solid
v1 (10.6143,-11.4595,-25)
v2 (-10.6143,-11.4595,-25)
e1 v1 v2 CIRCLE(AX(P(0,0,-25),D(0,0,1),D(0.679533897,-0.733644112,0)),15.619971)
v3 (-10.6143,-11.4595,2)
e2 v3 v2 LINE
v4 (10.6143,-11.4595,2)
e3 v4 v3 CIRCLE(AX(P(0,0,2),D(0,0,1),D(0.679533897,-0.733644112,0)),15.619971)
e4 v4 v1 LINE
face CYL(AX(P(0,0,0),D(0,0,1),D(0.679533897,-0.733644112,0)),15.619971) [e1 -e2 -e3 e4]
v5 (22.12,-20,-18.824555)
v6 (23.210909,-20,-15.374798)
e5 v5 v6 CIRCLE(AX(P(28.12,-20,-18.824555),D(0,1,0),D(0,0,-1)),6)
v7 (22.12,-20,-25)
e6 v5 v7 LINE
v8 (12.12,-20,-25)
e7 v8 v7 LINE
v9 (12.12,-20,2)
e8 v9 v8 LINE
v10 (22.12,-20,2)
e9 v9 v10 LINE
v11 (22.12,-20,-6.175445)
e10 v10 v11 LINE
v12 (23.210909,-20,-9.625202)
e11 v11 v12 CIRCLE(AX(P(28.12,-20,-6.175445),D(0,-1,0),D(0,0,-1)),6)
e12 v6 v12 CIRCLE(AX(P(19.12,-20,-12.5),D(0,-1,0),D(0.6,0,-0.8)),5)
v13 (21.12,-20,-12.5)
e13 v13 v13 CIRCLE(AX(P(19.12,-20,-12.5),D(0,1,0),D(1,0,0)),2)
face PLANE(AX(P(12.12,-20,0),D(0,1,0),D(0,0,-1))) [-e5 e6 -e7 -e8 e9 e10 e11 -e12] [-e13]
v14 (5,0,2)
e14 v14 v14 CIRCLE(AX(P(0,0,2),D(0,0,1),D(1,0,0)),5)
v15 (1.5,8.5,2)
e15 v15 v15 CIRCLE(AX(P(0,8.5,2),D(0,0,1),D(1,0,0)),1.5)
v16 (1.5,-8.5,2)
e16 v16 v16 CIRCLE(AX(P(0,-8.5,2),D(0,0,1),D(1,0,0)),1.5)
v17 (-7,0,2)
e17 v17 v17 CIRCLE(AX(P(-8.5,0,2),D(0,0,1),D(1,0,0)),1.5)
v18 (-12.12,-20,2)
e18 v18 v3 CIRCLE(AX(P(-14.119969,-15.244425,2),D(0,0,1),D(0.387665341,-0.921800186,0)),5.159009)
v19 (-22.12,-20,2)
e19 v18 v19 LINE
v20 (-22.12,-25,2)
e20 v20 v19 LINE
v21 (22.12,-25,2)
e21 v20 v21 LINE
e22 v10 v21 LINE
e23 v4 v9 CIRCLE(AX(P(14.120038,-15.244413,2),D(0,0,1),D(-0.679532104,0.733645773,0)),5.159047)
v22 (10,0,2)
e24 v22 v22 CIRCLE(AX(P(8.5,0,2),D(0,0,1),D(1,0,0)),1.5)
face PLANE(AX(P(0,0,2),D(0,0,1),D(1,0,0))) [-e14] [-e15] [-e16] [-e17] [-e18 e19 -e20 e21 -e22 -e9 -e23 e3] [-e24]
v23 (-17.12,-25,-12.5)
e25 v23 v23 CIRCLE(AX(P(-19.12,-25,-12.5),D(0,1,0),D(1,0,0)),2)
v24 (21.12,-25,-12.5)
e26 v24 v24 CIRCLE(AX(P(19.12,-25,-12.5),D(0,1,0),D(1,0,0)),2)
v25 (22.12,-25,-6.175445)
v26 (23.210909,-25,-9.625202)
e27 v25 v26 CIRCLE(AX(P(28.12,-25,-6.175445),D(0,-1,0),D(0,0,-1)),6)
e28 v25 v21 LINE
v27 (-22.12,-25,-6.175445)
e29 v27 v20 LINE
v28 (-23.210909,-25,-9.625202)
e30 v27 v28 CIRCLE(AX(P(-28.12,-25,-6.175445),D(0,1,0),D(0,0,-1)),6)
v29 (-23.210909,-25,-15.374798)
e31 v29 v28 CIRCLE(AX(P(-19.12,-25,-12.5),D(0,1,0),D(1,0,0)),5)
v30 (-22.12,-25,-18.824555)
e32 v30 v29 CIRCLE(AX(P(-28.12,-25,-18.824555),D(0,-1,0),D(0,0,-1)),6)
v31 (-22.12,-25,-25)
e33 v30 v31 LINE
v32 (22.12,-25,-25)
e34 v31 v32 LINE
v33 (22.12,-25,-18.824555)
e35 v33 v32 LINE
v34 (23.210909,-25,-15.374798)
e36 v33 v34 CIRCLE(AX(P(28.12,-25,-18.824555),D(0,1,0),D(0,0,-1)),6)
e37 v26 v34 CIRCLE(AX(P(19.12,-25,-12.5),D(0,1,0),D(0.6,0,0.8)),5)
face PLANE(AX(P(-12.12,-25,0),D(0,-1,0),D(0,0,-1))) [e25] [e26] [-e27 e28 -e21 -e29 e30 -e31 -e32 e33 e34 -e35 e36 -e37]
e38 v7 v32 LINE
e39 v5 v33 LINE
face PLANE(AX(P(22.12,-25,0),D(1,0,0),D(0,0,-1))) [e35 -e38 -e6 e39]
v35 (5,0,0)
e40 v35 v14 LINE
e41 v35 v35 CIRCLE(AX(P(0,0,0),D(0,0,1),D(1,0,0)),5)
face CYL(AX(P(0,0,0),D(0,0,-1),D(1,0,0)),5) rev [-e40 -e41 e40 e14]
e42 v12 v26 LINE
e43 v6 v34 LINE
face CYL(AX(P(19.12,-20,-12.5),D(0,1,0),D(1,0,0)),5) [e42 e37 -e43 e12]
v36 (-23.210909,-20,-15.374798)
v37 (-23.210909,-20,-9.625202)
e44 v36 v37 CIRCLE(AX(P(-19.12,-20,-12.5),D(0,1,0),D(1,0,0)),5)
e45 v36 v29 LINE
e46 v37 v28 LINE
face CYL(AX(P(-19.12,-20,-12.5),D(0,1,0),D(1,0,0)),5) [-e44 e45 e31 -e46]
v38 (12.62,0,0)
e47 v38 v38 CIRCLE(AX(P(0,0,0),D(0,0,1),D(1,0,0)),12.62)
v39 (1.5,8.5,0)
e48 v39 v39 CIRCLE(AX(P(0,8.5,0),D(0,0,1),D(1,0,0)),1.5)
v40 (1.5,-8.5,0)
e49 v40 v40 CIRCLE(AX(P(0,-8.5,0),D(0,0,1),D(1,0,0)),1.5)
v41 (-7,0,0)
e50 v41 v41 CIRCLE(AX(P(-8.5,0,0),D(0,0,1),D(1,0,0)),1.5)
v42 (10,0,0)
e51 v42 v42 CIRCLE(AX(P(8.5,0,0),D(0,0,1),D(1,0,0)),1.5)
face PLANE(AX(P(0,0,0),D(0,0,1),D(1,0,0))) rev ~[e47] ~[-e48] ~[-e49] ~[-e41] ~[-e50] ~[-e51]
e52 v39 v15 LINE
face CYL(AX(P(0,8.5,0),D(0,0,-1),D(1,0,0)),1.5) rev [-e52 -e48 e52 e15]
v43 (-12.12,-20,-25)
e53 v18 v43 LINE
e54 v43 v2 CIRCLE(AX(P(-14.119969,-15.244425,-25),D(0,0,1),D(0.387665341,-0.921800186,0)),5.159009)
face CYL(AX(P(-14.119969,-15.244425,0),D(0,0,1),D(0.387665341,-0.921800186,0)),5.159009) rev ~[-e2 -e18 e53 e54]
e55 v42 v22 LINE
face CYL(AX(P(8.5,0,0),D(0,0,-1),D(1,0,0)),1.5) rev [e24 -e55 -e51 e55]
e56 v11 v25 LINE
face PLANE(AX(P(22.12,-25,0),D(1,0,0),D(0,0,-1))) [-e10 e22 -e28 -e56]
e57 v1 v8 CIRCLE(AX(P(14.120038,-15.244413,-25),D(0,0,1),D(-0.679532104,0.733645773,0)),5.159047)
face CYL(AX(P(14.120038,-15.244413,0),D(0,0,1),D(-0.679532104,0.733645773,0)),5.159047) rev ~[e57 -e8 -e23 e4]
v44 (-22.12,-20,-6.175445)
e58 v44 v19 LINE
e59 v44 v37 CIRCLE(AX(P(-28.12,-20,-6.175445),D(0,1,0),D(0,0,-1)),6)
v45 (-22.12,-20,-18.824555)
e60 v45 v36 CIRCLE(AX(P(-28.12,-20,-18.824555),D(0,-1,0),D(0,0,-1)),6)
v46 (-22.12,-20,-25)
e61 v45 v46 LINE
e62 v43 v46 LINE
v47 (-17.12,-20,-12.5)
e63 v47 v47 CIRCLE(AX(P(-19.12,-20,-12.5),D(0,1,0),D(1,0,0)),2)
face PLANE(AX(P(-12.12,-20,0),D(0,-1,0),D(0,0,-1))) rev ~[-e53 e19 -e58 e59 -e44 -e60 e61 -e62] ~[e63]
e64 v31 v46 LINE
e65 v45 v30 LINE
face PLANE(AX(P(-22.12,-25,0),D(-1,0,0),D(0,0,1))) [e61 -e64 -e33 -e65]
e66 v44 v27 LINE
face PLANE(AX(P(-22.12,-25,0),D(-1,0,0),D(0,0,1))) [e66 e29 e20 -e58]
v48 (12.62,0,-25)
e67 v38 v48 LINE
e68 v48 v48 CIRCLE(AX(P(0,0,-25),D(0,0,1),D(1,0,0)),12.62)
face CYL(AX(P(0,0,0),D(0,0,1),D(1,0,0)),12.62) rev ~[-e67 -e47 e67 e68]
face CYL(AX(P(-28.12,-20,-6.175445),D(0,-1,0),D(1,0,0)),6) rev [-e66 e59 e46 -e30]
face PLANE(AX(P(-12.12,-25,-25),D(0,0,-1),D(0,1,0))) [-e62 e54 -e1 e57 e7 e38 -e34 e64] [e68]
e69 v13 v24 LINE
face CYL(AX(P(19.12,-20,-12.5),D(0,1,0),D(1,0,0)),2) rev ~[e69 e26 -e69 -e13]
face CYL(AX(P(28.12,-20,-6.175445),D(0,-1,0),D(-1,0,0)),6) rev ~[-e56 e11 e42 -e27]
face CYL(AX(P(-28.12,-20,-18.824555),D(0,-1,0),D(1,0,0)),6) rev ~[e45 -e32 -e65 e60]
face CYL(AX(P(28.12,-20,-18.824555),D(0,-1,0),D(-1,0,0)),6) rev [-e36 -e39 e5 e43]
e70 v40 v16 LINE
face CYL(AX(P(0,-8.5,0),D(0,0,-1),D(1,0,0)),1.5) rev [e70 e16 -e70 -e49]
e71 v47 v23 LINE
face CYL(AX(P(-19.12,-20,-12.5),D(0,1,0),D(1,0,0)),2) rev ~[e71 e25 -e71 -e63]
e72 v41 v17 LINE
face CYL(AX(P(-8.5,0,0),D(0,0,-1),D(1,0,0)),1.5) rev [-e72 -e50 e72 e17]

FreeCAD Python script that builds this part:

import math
import FreeCAD as App
import Part
import Sketcher
from FreeCAD import Vector
Q = App.Units.Quantity


def edges_at(feature, points):
    """Names of the edges that pass closest to the given points."""
    edges = feature.Shape.Edges
    near = lambda p: min(range(len(edges)), key=lambda i: edges[i].distToShape(Part.Vertex(*p))[0])
    return sorted({f"Edge{near(p) + 1}" for p in points})


def add_polygon(sketch, points):
    """Adds a closed chain of lines whose ends are joined by coincident constraints."""
    first, n = sketch.GeometryCount, len(points)
    for a, b in zip(points, points[1:] + points[:1]):
        sketch.addGeometry(Part.LineSegment(App.Vector(*a, 0), App.Vector(*b, 0)), False)
    for i in range(n):
        sketch.addConstraint(Sketcher.Constraint("Coincident", first + i, 2, first + (i + 1) % n, 1))

doc = App.newDocument("Part")
body = doc.addObject("PartDesign::Body", "Body")

sketch1 = doc.addObject("Sketcher::SketchObject", "Sketch")
body.addObject(sketch1)
sketch1.AttachmentSupport = (doc.XY_Plane, [""])
sketch1.MapMode = "FlatFace"
sketch1.addGeometry([
    Part.ArcOfCircle(Part.Circle(Vector(14, -15, 0), Vector(0, 0, 1), 5), math.radians(133), math.radians(247)),
    Part.ArcOfCircle(Part.Circle(Vector(0, 0, 0), Vector(0, 0, 1), 16), math.radians(-47), math.radians(227)),
    Part.ArcOfCircle(Part.Circle(Vector(-14, -15, 0), Vector(0, 0, 1), 5), math.radians(-67), math.radians(47)),
    Part.LineSegment(Vector(-12, -20, 0), Vector(-12, -25, 0)),
    Part.LineSegment(Vector(-12, -25, 0), Vector(12, -25, 0)),
    Part.LineSegment(Vector(12, -25, 0), Vector(12, -20, 0)),
    Part.Circle(Vector(0, 0, 0), Vector(0, 0, 1), 13),
], False)
sketch1.addConstraint([
    Sketcher.Constraint("Tangent", 0, 1, 1, 1),
    Sketcher.Constraint("Tangent", 1, 2, 2, 2),
    Sketcher.Constraint("Coincident", 2, 1, 3, 1),
    Sketcher.Constraint("Coincident", 3, 2, 4, 1),
    Sketcher.Constraint("Coincident", 4, 2, 5, 1),
    Sketcher.Constraint("Coincident", 5, 2, 0, 2),
    Sketcher.Constraint("Vertical", 3),
    Sketcher.Constraint("Horizontal", 4),
    Sketcher.Constraint("Vertical", 5),
    Sketcher.Constraint("Coincident", 1, 3, -1, 1),
    Sketcher.Constraint("Coincident", 6, 3, -1, 1),
    Sketcher.Constraint("Equal", 0, 2),
    Sketcher.Constraint("Symmetric", 2, 1, 5, 2, -2),
    Sketcher.Constraint("DistanceY", 3, 2, 3, 1, Q("5 mm")),
    Sketcher.Constraint("DistanceY", 3, 2, -1, 1, Q("25 mm")),
    Sketcher.Constraint("DistanceX", 2, 3, 2, 1, Q("2 mm")),
    Sketcher.Constraint("Diameter", 6, Q("25.24 mm")),
    Sketcher.Constraint("Radius", 1, Q("15.62 mm")),
    Sketcher.Constraint("Radius", 0, Q("5.159 mm")),
])
pad1 = doc.addObject("PartDesign::Pad", "Pad")
body.addObject(pad1)
pad1.Profile = sketch1
pad1.Length = 25
pad1.Reversed = True

sketch2 = doc.addObject("Sketcher::SketchObject", "Sketch001")
body.addObject(sketch2)
sketch2.AttachmentSupport = (doc.YZ_Plane, [""])
sketch2.MapMode = "FlatFace"
sketch2.AttachmentOffset = App.Placement(Vector(0, 0, 12.12), App.Rotation())
add_polygon(sketch2, [(-20, 0), (-25, 0), (-25, -25), (-20, -25)])
sketch2.addConstraint([
    Sketcher.Constraint("Horizontal", 0),
    Sketcher.Constraint("Vertical", 1),
    Sketcher.Constraint("Horizontal", 2),
    Sketcher.Constraint("Vertical", 3),
    Sketcher.Constraint("PointOnObject", 0, 2, -1),
    Sketcher.Constraint("DistanceX", 0, 2, 0, 1, Q("5 mm")),
    Sketcher.Constraint("DistanceY", 1, 2, 1, 1, Q("25 mm")),
    Sketcher.Constraint("DistanceX", 0, 2, -1, 1, Q("25 mm")),
])
pad2 = doc.addObject("PartDesign::Pad", "Pad001")
body.addObject(pad2)
pad2.Profile = sketch2
pad2.Length = 10

sketch3 = doc.addObject("Sketcher::SketchObject", "Sketch002")
body.addObject(sketch3)
sketch3.AttachmentSupport = (doc.YZ_Plane, [""])
sketch3.MapMode = "FlatFace"
sketch3.AttachmentOffset = App.Placement(Vector(0, 0, -12.12), App.Rotation())
add_polygon(sketch3, [(-25, 0), (-20, 0), (-20, -25), (-25, -25)])
sketch3.addConstraint([
    Sketcher.Constraint("Horizontal", 0),
    Sketcher.Constraint("Vertical", 1),
    Sketcher.Constraint("Horizontal", 2),
    Sketcher.Constraint("Vertical", 3),
    Sketcher.Constraint("PointOnObject", 0, 2, -1),
    Sketcher.Constraint("DistanceX", 0, 1, 0, 2, Q("5 mm")),
    Sketcher.Constraint("DistanceY", 1, 2, 1, 1, Q("25 mm")),
    Sketcher.Constraint("DistanceX", 0, 2, -1, 1, Q("20 mm")),
])
pad3 = doc.addObject("PartDesign::Pad", "Pad002")
body.addObject(pad3)
pad3.Profile = sketch3
pad3.Length = 10
pad3.Reversed = True

sketch4 = doc.addObject("Sketcher::SketchObject", "Sketch003")
body.addObject(sketch4)
sketch4.AttachmentSupport = (doc.XZ_Plane, [""])
sketch4.MapMode = "FlatFace"
sketch4.AttachmentOffset = App.Placement(Vector(0, 0, 20), App.Rotation())
sketch4.addGeometry([
    Part.Circle(Vector(19.1, -12.5, 0), Vector(0, 0, 1), 2),
    Part.Circle(Vector(-19.1, -12.5, 0), Vector(0, 0, 1), 2),
], False)
sketch4.addConstraint([
    Sketcher.Constraint("Equal", 0, 1),
    Sketcher.Constraint("Symmetric", 0, 3, 1, 3, -2),
    Sketcher.Constraint("Diameter", 0, Q("4 mm")),
    Sketcher.Constraint("DistanceY", 0, 3, -1, 1, Q("12.5 mm")),
    Sketcher.Constraint("DistanceX", -1, 1, 0, 3, Q("19.12 mm")),
])
pocket1 = doc.addObject("PartDesign::Pocket", "Pocket")
body.addObject(pocket1)
pocket1.Profile = sketch4
pocket1.Type = "ThroughAll"
pocket1.Reversed = True

sketch5 = doc.addObject("Sketcher::SketchObject", "Sketch004")
body.addObject(sketch5)
sketch5.AttachmentSupport = (doc.XZ_Plane, [""])
sketch5.MapMode = "FlatFace"
sketch5.AttachmentOffset = App.Placement(Vector(0, 0, 20), App.Rotation())
sketch5.addGeometry([
    Part.ArcOfCircle(Part.Circle(Vector(19, -12, 0), Vector(0, 0, 1), 5), math.radians(-53), math.radians(53)),
    Part.LineSegment(Vector(22, -16, 0), Vector(22, -8, 0)),
    Part.ArcOfCircle(Part.Circle(Vector(-19, -12, 0), Vector(0, 0, 1), 5), math.radians(127), math.radians(233)),
    Part.LineSegment(Vector(-22, -8, 0), Vector(-22, -16, 0)),
], False)
sketch5.addConstraint([
    Sketcher.Constraint("Coincident", 0, 1, 1, 1),
    Sketcher.Constraint("Coincident", 1, 2, 0, 2),
    Sketcher.Constraint("Coincident", 2, 1, 3, 1),
    Sketcher.Constraint("Coincident", 3, 2, 2, 2),
    Sketcher.Constraint("Vertical", 1),
    Sketcher.Constraint("Vertical", 3),
    Sketcher.Constraint("Equal", 0, 2),
    Sketcher.Constraint("Symmetric", 0, 3, 2, 3, -2),
    Sketcher.Constraint("Horizontal", 1, 2, 2, 1),
    Sketcher.Constraint("Radius", 0, Q("5 mm")),
    Sketcher.Constraint("DistanceX", 0, 3, 0, 1, Q("3 mm")),
    Sketcher.Constraint("DistanceY", 0, 3, -1, 1, Q("12.5 mm")),
    Sketcher.Constraint("DistanceX", -1, 1, 0, 3, Q("19.12 mm")),
])
pad4 = doc.addObject("PartDesign::Pad", "Pad003")
body.addObject(pad4)
pad4.Profile = sketch5
pad4.Length = 5
doc.recompute()

fillet = doc.addObject("PartDesign::Fillet", "Fillet")
body.addObject(fillet)
fillet.Base = (pad4, edges_at(pad4, [
    (22.12, -22.5, -8.5),
    (22.12, -22.5, -16.5),
    (-22.12, -22.5, -8.5),
    (-22.12, -22.5, -16.5),
]))
fillet.Radius = 6

sketch6 = doc.addObject("Sketcher::SketchObject", "Sketch005")
body.addObject(sketch6)
sketch6.AttachmentSupport = (doc.XY_Plane, [""])
sketch6.MapMode = "FlatFace"
sketch6.addGeometry([
    Part.ArcOfCircle(Part.Circle(Vector(14.1, -15.2, 0), Vector(0, 0, 1), 5.2), math.radians(133), math.radians(247)),
    Part.ArcOfCircle(Part.Circle(Vector(0, 0, 0), Vector(0, 0, 1), 15.6), math.radians(-47), math.radians(227)),
    Part.ArcOfCircle(Part.Circle(Vector(-14.1, -15.2, 0), Vector(0, 0, 1), 5.2), math.radians(-67), math.radians(47)),
    Part.LineSegment(Vector(-12.1, -20, 0), Vector(-22.1, -20, 0)),
    Part.LineSegment(Vector(-22.1, -20, 0), Vector(-22.1, -25, 0)),
    Part.LineSegment(Vector(-22.1, -25, 0), Vector(22.1, -25, 0)),
    Part.LineSegment(Vector(22.1, -25, 0), Vector(22.1, -20, 0)),
    Part.LineSegment(Vector(22.1, -20, 0), Vector(12.1, -20, 0)),
    Part.Circle(Vector(0, 8.5, 0), Vector(0, 0, 1), 1.5),
    Part.Circle(Vector(0, -8.5, 0), Vector(0, 0, 1), 1.5),
    Part.Circle(Vector(-8.5, 0, 0), Vector(0, 0, 1), 1.5),
    Part.Circle(Vector(0, 0, 0), Vector(0, 0, 1), 5),
    Part.Circle(Vector(8.5, 0, 0), Vector(0, 0, 1), 1.5),
], False)
sketch6.addConstraint([
    Sketcher.Constraint("Tangent", 0, 1, 1, 1),
    Sketcher.Constraint("Tangent", 1, 2, 2, 2),
    Sketcher.Constraint("Coincident", 2, 1, 3, 1),
    Sketcher.Constraint("Coincident", 3, 2, 4, 1),
    Sketcher.Constraint("Coincident", 4, 2, 5, 1),
    Sketcher.Constraint("Coincident", 5, 2, 6, 1),
    Sketcher.Constraint("Coincident", 6, 2, 7, 1),
    Sketcher.Constraint("Coincident", 7, 2, 0, 2),
    Sketcher.Constraint("Horizontal", 3),
    Sketcher.Constraint("Vertical", 4),
    Sketcher.Constraint("Horizontal", 5),
    Sketcher.Constraint("Vertical", 6),
    Sketcher.Constraint("Horizontal", 7),
    Sketcher.Constraint("Coincident", 1, 3, -1, 1),
    Sketcher.Constraint("Coincident", 11, 3, -1, 1),
    Sketcher.Constraint("Equal", 0, 2),
    Sketcher.Constraint("Equal", 8, 9),
    Sketcher.Constraint("Equal", 9, 10),
    Sketcher.Constraint("Equal", 10, 12),
    Sketcher.Constraint("Symmetric", 8, 3, 9, 3, -1, 1),
    Sketcher.Constraint("Symmetric", 10, 3, 12, 3, -1, 1),
    Sketcher.Constraint("Symmetric", 3, 2, 6, 2, -2),
    Sketcher.Constraint("PointOnObject", 8, 3, -2),
    Sketcher.Constraint("PointOnObject", 10, 3, -1),
    Sketcher.Constraint("Horizontal", 0, 3, 2, 3),
    Sketcher.Constraint("Diameter", 8, Q("3 mm")),
    Sketcher.Constraint("Diameter", 11, Q("10 mm")),
    Sketcher.Constraint("DistanceX", 3, 2, 3, 1, Q("10 mm")),
    Sketcher.Constraint("DistanceY", 9, 3, 8, 3, Q("17 mm")),
    Sketcher.Constraint("DistanceY", 4, 2, 4, 1, Q("5 mm")),
    Sketcher.Constraint("Radius", 1, Q("15.62 mm")),
    Sketcher.Constraint("DistanceY", 2, 1, -1, 1, Q("20 mm")),
    Sketcher.Constraint("Radius", 0, Q("5.159 mm")),
    Sketcher.Constraint("DistanceX", 2, 3, 2, 1, Q("2 mm")),
    Sketcher.Constraint("DistanceX", 10, 3, -1, 1, Q("8.5 mm")),
])
pad5 = doc.addObject("PartDesign::Pad", "Pad004")
body.addObject(pad5)
pad5.Profile = sketch6
pad5.Length = 2

doc.recompute()
